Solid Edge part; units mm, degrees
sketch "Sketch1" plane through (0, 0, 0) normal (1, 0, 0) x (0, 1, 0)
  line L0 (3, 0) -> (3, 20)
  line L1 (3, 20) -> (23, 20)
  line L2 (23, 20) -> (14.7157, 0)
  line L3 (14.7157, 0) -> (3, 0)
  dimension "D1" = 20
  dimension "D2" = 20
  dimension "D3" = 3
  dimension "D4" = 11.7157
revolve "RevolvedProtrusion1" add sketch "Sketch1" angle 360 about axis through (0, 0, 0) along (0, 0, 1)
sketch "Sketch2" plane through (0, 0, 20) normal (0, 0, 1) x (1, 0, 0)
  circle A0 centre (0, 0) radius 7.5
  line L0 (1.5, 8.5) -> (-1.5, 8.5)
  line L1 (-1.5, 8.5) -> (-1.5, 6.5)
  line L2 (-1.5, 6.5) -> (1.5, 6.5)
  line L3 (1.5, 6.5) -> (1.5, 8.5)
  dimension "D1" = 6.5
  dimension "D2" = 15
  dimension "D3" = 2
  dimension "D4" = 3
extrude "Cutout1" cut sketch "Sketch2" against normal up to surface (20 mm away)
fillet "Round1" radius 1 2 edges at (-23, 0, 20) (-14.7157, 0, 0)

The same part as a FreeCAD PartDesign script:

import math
import FreeCAD as App
import Part
import Sketcher
Q = App.Units.Quantity


def edges_at(feature, points):
    """Names of the edges that pass closest to the given points."""
    edges = feature.Shape.Edges
    near = lambda p: min(range(len(edges)), key=lambda i: edges[i].distToShape(Part.Vertex(*p))[0])
    return sorted({f"Edge{near(p) + 1}" for p in points})

doc = App.newDocument("Part")
body = doc.addObject("PartDesign::Body", "Body")

# Sketch on YZ plane
sketch1 = doc.addObject("Sketcher::SketchObject", "Sketch")
body.addObject(sketch1)
sketch1.AttachmentSupport = (doc.YZ_Plane, [""])
sketch1.MapMode = "FlatFace"
sketch1.addGeometry([
    Part.LineSegment(App.Vector(3, 20, 0), App.Vector(3, 0, 0)),
    Part.LineSegment(App.Vector(3, 0, 0), App.Vector(14.7157, 0, 0)),
    Part.LineSegment(App.Vector(14.7157, 0, 0), App.Vector(23, 20, 0)),
    Part.LineSegment(App.Vector(23, 20, 0), App.Vector(3, 20, 0)),
], False)
sketch1.addConstraint([
    Sketcher.Constraint("Coincident", 0, 2, 1, 1),
    Sketcher.Constraint("Coincident", 1, 2, 2, 1),
    Sketcher.Constraint("Coincident", 2, 2, 3, 1),
    Sketcher.Constraint("Coincident", 3, 2, 0, 1),
    Sketcher.Constraint("Vertical", 0),
    Sketcher.Constraint("Horizontal", 1),
    Sketcher.Constraint("Horizontal", 3),
    Sketcher.Constraint("PointOnObject", 0, 2, -1),
    Sketcher.Constraint("Equal", 3, 0),
    Sketcher.Constraint("DistanceX", -1, 1, 0, 2, Q("3 mm")),
    Sketcher.Constraint("DistanceX", 3, 2, 3, 1, Q("20 mm")),
    Sketcher.Constraint("Angle", 2, Q("67.5 deg")),
])
revolution = doc.addObject("PartDesign::Revolution", "Revolution")
body.addObject(revolution)
revolution.Profile = sketch1
revolution.ReferenceAxis = (sketch1, ["V_Axis"])
revolution.Angle = 360

# Sketch on XY plane
sketch2 = doc.addObject("Sketcher::SketchObject", "Sketch001")
body.addObject(sketch2)
sketch2.AttachmentSupport = (doc.XY_Plane, [""])
sketch2.MapMode = "FlatFace"
sketch2.AttachmentOffset = App.Placement(App.Vector(0, 0, 20), App.Rotation())
sketch2.addGeometry([
    Part.ArcOfCircle(Part.Circle(App.Vector(0, 0, 0), App.Vector(0, 0, 1), 7.5), math.radians(101.536959), math.radians(438.463041)),
    Part.LineSegment(App.Vector(1.5, 7.348469, 0), App.Vector(1.5, 8.5, 0)),
    Part.LineSegment(App.Vector(1.5, 8.5, 0), App.Vector(-1.5, 8.5, 0)),
    Part.LineSegment(App.Vector(-1.5, 8.5, 0), App.Vector(-1.5, 7.348469, 0)),
], False)
sketch2.addConstraint([
    Sketcher.Constraint("Coincident", 0, 2, 1, 1),
    Sketcher.Constraint("Coincident", 1, 2, 2, 1),
    Sketcher.Constraint("Coincident", 2, 2, 3, 1),
    Sketcher.Constraint("Coincident", 3, 2, 0, 1),
    Sketcher.Constraint("Vertical", 1),
    Sketcher.Constraint("Horizontal", 2),
    Sketcher.Constraint("Vertical", 3),
    Sketcher.Constraint("Coincident", 0, 3, -1, 1),
    Sketcher.Constraint("Horizontal", 0, 2, 3, 2),
    Sketcher.Constraint("Radius", 0, Q("7.5 mm")),
    Sketcher.Constraint("DistanceX", 2, 2, 2, 1, Q("3 mm")),
    Sketcher.Constraint("DistanceY", -1, 1, 1, 2, Q("8.5 mm")),
])
pocket1 = doc.addObject("PartDesign::Pocket", "Pocket")
body.addObject(pocket1)
pocket1.Profile = sketch2
pocket1.Length = 20
doc.recompute()

fillet = doc.addObject("PartDesign::Fillet", "Fillet")
body.addObject(fillet)
fillet.Base = (pocket1, edges_at(pocket1, [(-23, 0, 20), (-14.716, 0, 0)]))
fillet.Radius = 1

doc.recompute()
